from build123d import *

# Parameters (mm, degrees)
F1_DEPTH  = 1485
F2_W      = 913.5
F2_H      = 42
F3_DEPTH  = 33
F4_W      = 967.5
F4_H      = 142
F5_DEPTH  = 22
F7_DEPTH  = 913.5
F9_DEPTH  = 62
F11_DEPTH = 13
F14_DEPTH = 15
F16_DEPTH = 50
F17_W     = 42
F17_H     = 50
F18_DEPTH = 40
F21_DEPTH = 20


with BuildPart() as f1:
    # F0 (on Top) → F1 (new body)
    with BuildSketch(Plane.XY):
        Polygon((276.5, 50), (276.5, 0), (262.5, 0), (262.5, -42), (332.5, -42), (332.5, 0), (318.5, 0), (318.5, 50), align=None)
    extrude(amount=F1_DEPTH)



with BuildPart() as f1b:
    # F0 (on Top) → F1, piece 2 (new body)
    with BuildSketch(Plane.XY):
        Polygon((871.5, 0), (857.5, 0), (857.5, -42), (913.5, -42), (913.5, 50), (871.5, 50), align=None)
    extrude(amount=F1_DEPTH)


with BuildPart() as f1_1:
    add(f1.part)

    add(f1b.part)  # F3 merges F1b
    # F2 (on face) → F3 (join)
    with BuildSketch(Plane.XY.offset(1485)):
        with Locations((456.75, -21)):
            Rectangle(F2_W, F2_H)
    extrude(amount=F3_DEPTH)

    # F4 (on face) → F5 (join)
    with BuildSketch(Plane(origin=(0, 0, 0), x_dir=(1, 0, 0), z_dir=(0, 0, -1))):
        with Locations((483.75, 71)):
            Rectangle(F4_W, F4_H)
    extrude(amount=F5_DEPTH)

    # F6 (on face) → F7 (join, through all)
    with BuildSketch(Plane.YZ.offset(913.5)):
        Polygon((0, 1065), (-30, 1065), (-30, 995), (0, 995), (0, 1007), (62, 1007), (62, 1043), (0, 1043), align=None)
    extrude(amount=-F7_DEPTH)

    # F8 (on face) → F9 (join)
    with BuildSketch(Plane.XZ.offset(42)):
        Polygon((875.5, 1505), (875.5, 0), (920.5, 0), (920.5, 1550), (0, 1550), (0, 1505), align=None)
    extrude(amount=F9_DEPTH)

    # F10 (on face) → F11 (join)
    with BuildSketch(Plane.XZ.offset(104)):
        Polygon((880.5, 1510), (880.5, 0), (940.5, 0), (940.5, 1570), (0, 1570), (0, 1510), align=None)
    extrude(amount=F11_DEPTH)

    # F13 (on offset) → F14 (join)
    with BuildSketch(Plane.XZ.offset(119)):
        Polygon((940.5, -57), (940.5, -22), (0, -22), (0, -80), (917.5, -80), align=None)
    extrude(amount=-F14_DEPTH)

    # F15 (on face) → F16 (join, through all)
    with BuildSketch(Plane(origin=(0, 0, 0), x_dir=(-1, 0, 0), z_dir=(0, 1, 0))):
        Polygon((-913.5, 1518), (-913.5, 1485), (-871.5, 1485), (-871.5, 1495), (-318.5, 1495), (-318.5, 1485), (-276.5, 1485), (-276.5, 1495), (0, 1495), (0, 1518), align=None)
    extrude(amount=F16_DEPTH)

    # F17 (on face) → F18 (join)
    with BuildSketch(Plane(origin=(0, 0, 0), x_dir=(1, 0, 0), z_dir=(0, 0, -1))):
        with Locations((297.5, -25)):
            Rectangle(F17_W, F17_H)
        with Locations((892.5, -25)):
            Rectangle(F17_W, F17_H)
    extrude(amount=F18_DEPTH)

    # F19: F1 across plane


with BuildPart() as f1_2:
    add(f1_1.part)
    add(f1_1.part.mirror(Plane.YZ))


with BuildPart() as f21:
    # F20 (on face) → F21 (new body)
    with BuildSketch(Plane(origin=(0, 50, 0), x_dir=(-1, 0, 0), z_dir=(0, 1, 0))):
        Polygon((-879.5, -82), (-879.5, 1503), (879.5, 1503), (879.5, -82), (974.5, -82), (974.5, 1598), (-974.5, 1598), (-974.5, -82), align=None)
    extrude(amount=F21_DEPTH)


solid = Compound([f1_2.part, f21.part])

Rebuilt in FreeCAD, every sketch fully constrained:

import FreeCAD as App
import Part
import Sketcher

V = App.Vector
Q = App.Units.Quantity


def add_polygon(sketch, points):
    """Adds a closed chain of lines whose ends are joined by coincident constraints."""
    first, n = sketch.GeometryCount, len(points)
    for a, b in zip(points, points[1:] + points[:1]):
        sketch.addGeometry(Part.LineSegment(App.Vector(*a, 0), App.Vector(*b, 0)), False)
    for i in range(n):
        sketch.addConstraint(Sketcher.Constraint("Coincident", first + i, 2, first + (i + 1) % n, 1))

doc = App.newDocument("Part")
body = doc.addObject("PartDesign::Body", "Body")

# Sketch on XY plane
sketch1 = body.newObject("Sketcher::SketchObject", "Sketch")
sketch1.AttachmentSupport = (doc.getObject("XY_Plane"), [""])
sketch1.MapMode = "FlatFace"
add_polygon(sketch1, [(276.5, 50), (276.5, 0), (262.5, 0), (262.5, -42), (332.5, -42), (332.5, 0), (318.5, 0), (318.5, 50)])  # lines 0-7
sketch1.addConstraint(Sketcher.Constraint("Vertical", 0))
sketch1.addConstraint(Sketcher.Constraint("Horizontal", 1))
sketch1.addConstraint(Sketcher.Constraint("Vertical", 2))
sketch1.addConstraint(Sketcher.Constraint("Horizontal", 3))
sketch1.addConstraint(Sketcher.Constraint("Vertical", 4))
sketch1.addConstraint(Sketcher.Constraint("Horizontal", 5))
sketch1.addConstraint(Sketcher.Constraint("Vertical", 6))
sketch1.addConstraint(Sketcher.Constraint("Horizontal", 7))
sketch1.addConstraint(Sketcher.Constraint("PointOnObject", 0, 2, -1))
sketch1.addConstraint(Sketcher.Constraint("PointOnObject", 4, 2, -1))
sketch1.addConstraint(Sketcher.Constraint("Equal", 1, 5))
sketch1.addConstraint(Sketcher.Constraint("Equal", 7, 2))
sketch1.addConstraint(Sketcher.Constraint("DistanceX", 1, 2, 1, 1, Q("14 mm")))
sketch1.addConstraint(Sketcher.Constraint("DistanceX", 3, 1, 3, 2, Q("70 mm")))
sketch1.addConstraint(Sketcher.Constraint("DistanceY", 0, 2, 0, 1, Q("50 mm")))
sketch1.addConstraint(Sketcher.Constraint("DistanceX", -1, 1, 0, 2, Q("276.5 mm")))
pad1 = body.newObject("PartDesign::Pad", "Pad")
pad1.Profile = sketch1
pad1.Length = 1485
body2 = doc.addObject("PartDesign::Body", "Body001")

# Sketch on XY plane
sketch2 = body2.newObject("Sketcher::SketchObject", "Sketch001")
sketch2.AttachmentSupport = (doc.getObject("XY_Plane001"), [""])
sketch2.MapMode = "FlatFace"
add_polygon(sketch2, [(871.5, 0), (857.5, 0), (857.5, -42), (913.5, -42), (913.5, 50), (871.5, 50)])  # lines 0-5
sketch2.addConstraint(Sketcher.Constraint("Horizontal", 0))
sketch2.addConstraint(Sketcher.Constraint("Vertical", 1))
sketch2.addConstraint(Sketcher.Constraint("Horizontal", 2))
sketch2.addConstraint(Sketcher.Constraint("Vertical", 3))
sketch2.addConstraint(Sketcher.Constraint("Horizontal", 4))
sketch2.addConstraint(Sketcher.Constraint("Vertical", 5))
sketch2.addConstraint(Sketcher.Constraint("PointOnObject", 0, 2, -1))
sketch2.addConstraint(Sketcher.Constraint("Equal", 4, 1))
sketch2.addConstraint(Sketcher.Constraint("DistanceX", 0, 2, 0, 1, Q("14 mm")))
sketch2.addConstraint(Sketcher.Constraint("DistanceX", 2, 1, 2, 2, Q("56 mm")))
sketch2.addConstraint(Sketcher.Constraint("DistanceY", 3, 1, 3, 2, Q("92 mm")))
sketch2.addConstraint(Sketcher.Constraint("DistanceX", -1, 1, 0, 2, Q("857.5 mm")))
pad2 = body2.newObject("PartDesign::Pad", "Pad001")
pad2.Profile = sketch2
pad2.Length = 1485
body.AllowCompound = True
doc.recompute()

boolean = body.newObject("PartDesign::Boolean", "Boolean")
boolean.Type = "Fuse"
boolean.addObjects([body2])

# Sketch on XY plane
sketch3 = body.newObject("Sketcher::SketchObject", "Sketch002")
sketch3.AttachmentSupport = (doc.getObject("XY_Plane"), [""])
sketch3.MapMode = "FlatFace"
sketch3.AttachmentOffset = App.Placement(V(0, 0, 1485), App.Rotation())
add_polygon(sketch3, [(0, 0), (0, -42), (913.5, -42), (913.5, 0)])  # lines 0-3
sketch3.addConstraint(Sketcher.Constraint("Vertical", 0))
sketch3.addConstraint(Sketcher.Constraint("Horizontal", 1))
sketch3.addConstraint(Sketcher.Constraint("Vertical", 2))
sketch3.addConstraint(Sketcher.Constraint("Horizontal", 3))
sketch3.addConstraint(Sketcher.Constraint("Coincident", 3, 2, -1, 1))
sketch3.addConstraint(Sketcher.Constraint("DistanceY", 0, 2, 0, 1, Q("42 mm")))
sketch3.addConstraint(Sketcher.Constraint("DistanceX", 1, 1, 1, 2, Q("913.5 mm")))
pad3 = body.newObject("PartDesign::Pad", "Pad002")
pad3.Profile = sketch3
pad3.Length = 33

# Sketch on XY plane
sketch4 = body.newObject("Sketcher::SketchObject", "Sketch003")
sketch4.AttachmentSupport = (doc.getObject("XY_Plane"), [""])
sketch4.MapMode = "FlatFace"
add_polygon(sketch4, [(0, -142), (0, 0), (967.5, 0), (967.5, -142)])  # lines 0-3
sketch4.addConstraint(Sketcher.Constraint("Vertical", 0))
sketch4.addConstraint(Sketcher.Constraint("Horizontal", 1))
sketch4.addConstraint(Sketcher.Constraint("Vertical", 2))
sketch4.addConstraint(Sketcher.Constraint("Horizontal", 3))
sketch4.addConstraint(Sketcher.Constraint("Coincident", 0, 2, -1, 1))
sketch4.addConstraint(Sketcher.Constraint("DistanceY", 0, 1, 0, 2, Q("142 mm")))
sketch4.addConstraint(Sketcher.Constraint("DistanceX", 1, 1, 1, 2, Q("967.5 mm")))
pad4 = body.newObject("PartDesign::Pad", "Pad003")
pad4.Profile = sketch4
pad4.Length = 22
pad4.Reversed = True

# Sketch on YZ plane
sketch5 = body.newObject("Sketcher::SketchObject", "Sketch004")
sketch5.AttachmentSupport = (doc.getObject("YZ_Plane"), [""])
sketch5.MapMode = "FlatFace"
sketch5.AttachmentOffset = App.Placement(V(0, 0, 913.5), App.Rotation())
add_polygon(sketch5, [(0, 1065), (-30, 1065), (-30, 995), (0, 995), (0, 1007), (62, 1007), (62, 1043), (0, 1043)])  # lines 0-7
sketch5.addConstraint(Sketcher.Constraint("Horizontal", 0))
sketch5.addConstraint(Sketcher.Constraint("Vertical", 1))
sketch5.addConstraint(Sketcher.Constraint("Horizontal", 2))
sketch5.addConstraint(Sketcher.Constraint("Vertical", 3))
sketch5.addConstraint(Sketcher.Constraint("Horizontal", 4))
sketch5.addConstraint(Sketcher.Constraint("Vertical", 5))
sketch5.addConstraint(Sketcher.Constraint("Horizontal", 6))
sketch5.addConstraint(Sketcher.Constraint("Vertical", 7))
sketch5.addConstraint(Sketcher.Constraint("PointOnObject", 2, 2, -2))
sketch5.addConstraint(Sketcher.Constraint("PointOnObject", 6, 2, -2))
sketch5.addConstraint(Sketcher.Constraint("DistanceX", 0, 2, 0, 1, Q("30 mm")))
sketch5.addConstraint(Sketcher.Constraint("DistanceX", 4, 1, 4, 2, Q("62 mm")))
sketch5.addConstraint(Sketcher.Constraint("DistanceY", 1, 2, 1, 1, Q("70 mm")))
sketch5.addConstraint(Sketcher.Constraint("DistanceY", 3, 1, 3, 2, Q("12 mm")))
sketch5.addConstraint(Sketcher.Constraint("DistanceY", 5, 1, 5, 2, Q("36 mm")))
sketch5.addConstraint(Sketcher.Constraint("DistanceY", -1, 1, 0, 2, Q("1065 mm")))
pad5 = body.newObject("PartDesign::Pad", "Pad004")
pad5.Profile = sketch5
pad5.Length = 913.5
pad5.Reversed = True

# Sketch on XZ plane
sketch6 = body.newObject("Sketcher::SketchObject", "Sketch005")
sketch6.AttachmentSupport = (doc.getObject("XZ_Plane"), [""])
sketch6.MapMode = "FlatFace"
sketch6.AttachmentOffset = App.Placement(V(0, 0, 42), App.Rotation())
add_polygon(sketch6, [(875.5, 1505), (875.5, 0), (920.5, 0), (920.5, 1550), (0, 1550), (0, 1505)])  # lines 0-5
sketch6.addConstraint(Sketcher.Constraint("Vertical", 0))
sketch6.addConstraint(Sketcher.Constraint("Horizontal", 1))
sketch6.addConstraint(Sketcher.Constraint("Vertical", 2))
sketch6.addConstraint(Sketcher.Constraint("Horizontal", 3))
sketch6.addConstraint(Sketcher.Constraint("Vertical", 4))
sketch6.addConstraint(Sketcher.Constraint("Horizontal", 5))
sketch6.addConstraint(Sketcher.Constraint("PointOnObject", 0, 2, -1))
sketch6.addConstraint(Sketcher.Constraint("PointOnObject", 3, 2, -2))
sketch6.addConstraint(Sketcher.Constraint("Equal", 1, 4))
sketch6.addConstraint(Sketcher.Constraint("DistanceX", 1, 1, 1, 2, Q("45 mm")))
sketch6.addConstraint(Sketcher.Constraint("DistanceY", 0, 2, 0, 1, Q("1505 mm")))
sketch6.addConstraint(Sketcher.Constraint("DistanceX", 3, 2, 3, 1, Q("920.5 mm")))
pad6 = body.newObject("PartDesign::Pad", "Pad005")
pad6.Profile = sketch6
pad6.Length = 62

# Sketch on XZ plane
sketch7 = body.newObject("Sketcher::SketchObject", "Sketch006")
sketch7.AttachmentSupport = (doc.getObject("XZ_Plane"), [""])
sketch7.MapMode = "FlatFace"
sketch7.AttachmentOffset = App.Placement(V(0, 0, 104), App.Rotation())
add_polygon(sketch7, [(880.5, 1510), (880.5, 0), (940.5, 0), (940.5, 1570), (0, 1570), (0, 1510)])  # lines 0-5
sketch7.addConstraint(Sketcher.Constraint("Vertical", 0))
sketch7.addConstraint(Sketcher.Constraint("Horizontal", 1))
sketch7.addConstraint(Sketcher.Constraint("Vertical", 2))
sketch7.addConstraint(Sketcher.Constraint("Horizontal", 3))
sketch7.addConstraint(Sketcher.Constraint("Vertical", 4))
sketch7.addConstraint(Sketcher.Constraint("Horizontal", 5))
sketch7.addConstraint(Sketcher.Constraint("PointOnObject", 0, 2, -1))
sketch7.addConstraint(Sketcher.Constraint("PointOnObject", 3, 2, -2))
sketch7.addConstraint(Sketcher.Constraint("Equal", 1, 4))
sketch7.addConstraint(Sketcher.Constraint("DistanceX", 1, 1, 1, 2, Q("60 mm")))
sketch7.addConstraint(Sketcher.Constraint("DistanceY", 0, 2, 0, 1, Q("1510 mm")))
sketch7.addConstraint(Sketcher.Constraint("DistanceX", 3, 2, 3, 1, Q("940.5 mm")))
pad7 = body.newObject("PartDesign::Pad", "Pad006")
pad7.Profile = sketch7
pad7.Length = 13

# Sketch on XZ plane
sketch8 = body.newObject("Sketcher::SketchObject", "Sketch007")
sketch8.AttachmentSupport = (doc.getObject("XZ_Plane"), [""])
sketch8.MapMode = "FlatFace"
sketch8.AttachmentOffset = App.Placement(V(0, 0, 119), App.Rotation())
add_polygon(sketch8, [(940.5, -57), (940.5, -22), (0, -22), (0, -80), (917.5, -80)])  # lines 0-4
sketch8.addConstraint(Sketcher.Constraint("Vertical", 0))
sketch8.addConstraint(Sketcher.Constraint("Horizontal", 1))
sketch8.addConstraint(Sketcher.Constraint("Vertical", 2))
sketch8.addConstraint(Sketcher.Constraint("Horizontal", 3))
sketch8.addConstraint(Sketcher.Constraint("PointOnObject", 1, 2, -2))
sketch8.addConstraint(Sketcher.Constraint("DistanceY", 0, 1, 0, 2, Q("35 mm")))
sketch8.addConstraint(Sketcher.Constraint("DistanceY", 2, 2, 2, 1, Q("58 mm")))
sketch8.addConstraint(Sketcher.Constraint("Angle", 4, Q("45 deg")))
sketch8.addConstraint(Sketcher.Constraint("DistanceX", 1, 2, 1, 1, Q("940.5 mm")))
sketch8.addConstraint(Sketcher.Constraint("DistanceY", 0, 2, -1, 1, Q("22 mm")))
pad8 = body.newObject("PartDesign::Pad", "Pad007")
pad8.Profile = sketch8
pad8.Length = 15
pad8.Reversed = True

# Sketch on XZ plane
sketch9 = body.newObject("Sketcher::SketchObject", "Sketch008")
sketch9.AttachmentSupport = (doc.getObject("XZ_Plane"), [""])
sketch9.MapMode = "FlatFace"
add_polygon(sketch9, [(913.5, 1518), (913.5, 1485), (871.5, 1485), (871.5, 1495), (318.5, 1495), (318.5, 1485), (276.5, 1485), (276.5, 1495), (0, 1495), (0, 1518)])  # lines 0-9
sketch9.addConstraint(Sketcher.Constraint("Vertical", 0))
sketch9.addConstraint(Sketcher.Constraint("Horizontal", 1))
sketch9.addConstraint(Sketcher.Constraint("Vertical", 2))
sketch9.addConstraint(Sketcher.Constraint("Horizontal", 3))
sketch9.addConstraint(Sketcher.Constraint("Vertical", 4))
sketch9.addConstraint(Sketcher.Constraint("Horizontal", 5))
sketch9.addConstraint(Sketcher.Constraint("Vertical", 6))
sketch9.addConstraint(Sketcher.Constraint("Horizontal", 7))
sketch9.addConstraint(Sketcher.Constraint("Vertical", 8))
sketch9.addConstraint(Sketcher.Constraint("Horizontal", 9))
sketch9.addConstraint(Sketcher.Constraint("PointOnObject", 7, 2, -2))
sketch9.addConstraint(Sketcher.Constraint("Horizontal", 1, 2, 4, 2))
sketch9.addConstraint(Sketcher.Constraint("Horizontal", 3, 2, 6, 2))
sketch9.addConstraint(Sketcher.Constraint("Equal", 1, 5))
sketch9.addConstraint(Sketcher.Constraint("DistanceX", 1, 2, 1, 1, Q("42 mm")))
sketch9.addConstraint(Sketcher.Constraint("DistanceX", 3, 2, 3, 1, Q("553 mm")))
sketch9.addConstraint(Sketcher.Constraint("DistanceY", 0, 2, 0, 1, Q("33 mm")))
sketch9.addConstraint(Sketcher.Constraint("DistanceY", 2, 1, 2, 2, Q("10 mm")))
sketch9.addConstraint(Sketcher.Constraint("DistanceX", 7, 2, 7, 1, Q("276.5 mm")))
sketch9.addConstraint(Sketcher.Constraint("DistanceY", -1, 1, 0, 2, Q("1485 mm")))
pad9 = body.newObject("PartDesign::Pad", "Pad008")
pad9.Profile = sketch9
pad9.Length = 50
pad9.Reversed = True

# Sketch on XY plane
sketch10 = body.newObject("Sketcher::SketchObject", "Sketch009")
sketch10.AttachmentSupport = (doc.getObject("XY_Plane"), [""])
sketch10.MapMode = "FlatFace"
add_polygon(sketch10, [(276.5, 0), (276.5, 50), (318.5, 50), (318.5, 0)])  # lines 0-3
add_polygon(sketch10, [(871.5, 0), (871.5, 50), (913.5, 50), (913.5, 0)])  # lines 4-7
sketch10.addConstraint(Sketcher.Constraint("Vertical", 0))
sketch10.addConstraint(Sketcher.Constraint("Horizontal", 1))
sketch10.addConstraint(Sketcher.Constraint("Vertical", 2))
sketch10.addConstraint(Sketcher.Constraint("Horizontal", 3))
sketch10.addConstraint(Sketcher.Constraint("Vertical", 4))
sketch10.addConstraint(Sketcher.Constraint("Horizontal", 5))
sketch10.addConstraint(Sketcher.Constraint("Vertical", 6))
sketch10.addConstraint(Sketcher.Constraint("Horizontal", 7))
sketch10.addConstraint(Sketcher.Constraint("PointOnObject", 2, 2, -1))
sketch10.addConstraint(Sketcher.Constraint("PointOnObject", 6, 2, -1))
sketch10.addConstraint(Sketcher.Constraint("Horizontal", 1, 2, 4, 2))
sketch10.addConstraint(Sketcher.Constraint("Equal", 3, 5))
sketch10.addConstraint(Sketcher.Constraint("DistanceX", 1, 1, 1, 2, Q("42 mm")))
sketch10.addConstraint(Sketcher.Constraint("DistanceY", 0, 1, 0, 2, Q("50 mm")))
sketch10.addConstraint(Sketcher.Constraint("DistanceX", 1, 2, 4, 2, Q("553 mm")))
sketch10.addConstraint(Sketcher.Constraint("DistanceX", -1, 1, 0, 2, Q("276.5 mm")))
pad10 = body.newObject("PartDesign::Pad", "Pad009")
pad10.Profile = sketch10
pad10.Length = 40
pad10.Reversed = True
body3 = doc.addObject("PartDesign::Body", "Body002")
doc.recompute()

body3.BaseFeature = body
doc.recompute()

mirroring = doc.addObject("Part::Mirroring", "Mirroring")
mirroring.Source = body
mirroring.Base = V(0, 0, 0)
mirroring.Normal = V(1, 0, 0)
body4 = doc.addObject("PartDesign::Body", "Body003")
body4.BaseFeature = mirroring
boolean2 = body3.newObject("PartDesign::Boolean", "Boolean001")
boolean2.Type = "Fuse"
boolean2.addObjects([body4])
doc.recompute()
body5 = doc.addObject("PartDesign::Body", "Body004")

# Sketch on XZ plane
sketch11 = body5.newObject("Sketcher::SketchObject", "Sketch010")
sketch11.AttachmentSupport = (doc.getObject("XZ_Plane004"), [""])
sketch11.MapMode = "FlatFace"
sketch11.AttachmentOffset = App.Placement(V(0, 0, -50), App.Rotation())
add_polygon(sketch11, [(879.5, -82), (879.5, 1503), (-879.5, 1503), (-879.5, -82), (-974.5, -82), (-974.5, 1598), (974.5, 1598), (974.5, -82)])  # lines 0-7
sketch11.addConstraint(Sketcher.Constraint("Vertical", 0))
sketch11.addConstraint(Sketcher.Constraint("Horizontal", 1))
sketch11.addConstraint(Sketcher.Constraint("Vertical", 2))
sketch11.addConstraint(Sketcher.Constraint("Horizontal", 3))
sketch11.addConstraint(Sketcher.Constraint("Vertical", 4))
sketch11.addConstraint(Sketcher.Constraint("Horizontal", 5))
sketch11.addConstraint(Sketcher.Constraint("Vertical", 6))
sketch11.addConstraint(Sketcher.Constraint("Horizontal", 7))
sketch11.addConstraint(Sketcher.Constraint("Symmetric", 3, 2, 6, 2, -2))
sketch11.addConstraint(Sketcher.Constraint("Equal", 3, 7))
sketch11.addConstraint(Sketcher.Constraint("DistanceX", 1, 2, 1, 1, Q("1759 mm")))
sketch11.addConstraint(Sketcher.Constraint("DistanceX", 3, 2, 3, 1, Q("95 mm")))
sketch11.addConstraint(Sketcher.Constraint("DistanceY", 0, 1, 0, 2, Q("1585 mm")))
sketch11.addConstraint(Sketcher.Constraint("DistanceY", 4, 1, 4, 2, Q("1680 mm")))
sketch11.addConstraint(Sketcher.Constraint("DistanceY", -1, 1, 0, 2, Q("1503 mm")))
pad11 = body5.newObject("PartDesign::Pad", "Pad010")
pad11.Profile = sketch11
pad11.Length = 20
pad11.Reversed = True
mirroring.Visibility = False

doc.recompute()
